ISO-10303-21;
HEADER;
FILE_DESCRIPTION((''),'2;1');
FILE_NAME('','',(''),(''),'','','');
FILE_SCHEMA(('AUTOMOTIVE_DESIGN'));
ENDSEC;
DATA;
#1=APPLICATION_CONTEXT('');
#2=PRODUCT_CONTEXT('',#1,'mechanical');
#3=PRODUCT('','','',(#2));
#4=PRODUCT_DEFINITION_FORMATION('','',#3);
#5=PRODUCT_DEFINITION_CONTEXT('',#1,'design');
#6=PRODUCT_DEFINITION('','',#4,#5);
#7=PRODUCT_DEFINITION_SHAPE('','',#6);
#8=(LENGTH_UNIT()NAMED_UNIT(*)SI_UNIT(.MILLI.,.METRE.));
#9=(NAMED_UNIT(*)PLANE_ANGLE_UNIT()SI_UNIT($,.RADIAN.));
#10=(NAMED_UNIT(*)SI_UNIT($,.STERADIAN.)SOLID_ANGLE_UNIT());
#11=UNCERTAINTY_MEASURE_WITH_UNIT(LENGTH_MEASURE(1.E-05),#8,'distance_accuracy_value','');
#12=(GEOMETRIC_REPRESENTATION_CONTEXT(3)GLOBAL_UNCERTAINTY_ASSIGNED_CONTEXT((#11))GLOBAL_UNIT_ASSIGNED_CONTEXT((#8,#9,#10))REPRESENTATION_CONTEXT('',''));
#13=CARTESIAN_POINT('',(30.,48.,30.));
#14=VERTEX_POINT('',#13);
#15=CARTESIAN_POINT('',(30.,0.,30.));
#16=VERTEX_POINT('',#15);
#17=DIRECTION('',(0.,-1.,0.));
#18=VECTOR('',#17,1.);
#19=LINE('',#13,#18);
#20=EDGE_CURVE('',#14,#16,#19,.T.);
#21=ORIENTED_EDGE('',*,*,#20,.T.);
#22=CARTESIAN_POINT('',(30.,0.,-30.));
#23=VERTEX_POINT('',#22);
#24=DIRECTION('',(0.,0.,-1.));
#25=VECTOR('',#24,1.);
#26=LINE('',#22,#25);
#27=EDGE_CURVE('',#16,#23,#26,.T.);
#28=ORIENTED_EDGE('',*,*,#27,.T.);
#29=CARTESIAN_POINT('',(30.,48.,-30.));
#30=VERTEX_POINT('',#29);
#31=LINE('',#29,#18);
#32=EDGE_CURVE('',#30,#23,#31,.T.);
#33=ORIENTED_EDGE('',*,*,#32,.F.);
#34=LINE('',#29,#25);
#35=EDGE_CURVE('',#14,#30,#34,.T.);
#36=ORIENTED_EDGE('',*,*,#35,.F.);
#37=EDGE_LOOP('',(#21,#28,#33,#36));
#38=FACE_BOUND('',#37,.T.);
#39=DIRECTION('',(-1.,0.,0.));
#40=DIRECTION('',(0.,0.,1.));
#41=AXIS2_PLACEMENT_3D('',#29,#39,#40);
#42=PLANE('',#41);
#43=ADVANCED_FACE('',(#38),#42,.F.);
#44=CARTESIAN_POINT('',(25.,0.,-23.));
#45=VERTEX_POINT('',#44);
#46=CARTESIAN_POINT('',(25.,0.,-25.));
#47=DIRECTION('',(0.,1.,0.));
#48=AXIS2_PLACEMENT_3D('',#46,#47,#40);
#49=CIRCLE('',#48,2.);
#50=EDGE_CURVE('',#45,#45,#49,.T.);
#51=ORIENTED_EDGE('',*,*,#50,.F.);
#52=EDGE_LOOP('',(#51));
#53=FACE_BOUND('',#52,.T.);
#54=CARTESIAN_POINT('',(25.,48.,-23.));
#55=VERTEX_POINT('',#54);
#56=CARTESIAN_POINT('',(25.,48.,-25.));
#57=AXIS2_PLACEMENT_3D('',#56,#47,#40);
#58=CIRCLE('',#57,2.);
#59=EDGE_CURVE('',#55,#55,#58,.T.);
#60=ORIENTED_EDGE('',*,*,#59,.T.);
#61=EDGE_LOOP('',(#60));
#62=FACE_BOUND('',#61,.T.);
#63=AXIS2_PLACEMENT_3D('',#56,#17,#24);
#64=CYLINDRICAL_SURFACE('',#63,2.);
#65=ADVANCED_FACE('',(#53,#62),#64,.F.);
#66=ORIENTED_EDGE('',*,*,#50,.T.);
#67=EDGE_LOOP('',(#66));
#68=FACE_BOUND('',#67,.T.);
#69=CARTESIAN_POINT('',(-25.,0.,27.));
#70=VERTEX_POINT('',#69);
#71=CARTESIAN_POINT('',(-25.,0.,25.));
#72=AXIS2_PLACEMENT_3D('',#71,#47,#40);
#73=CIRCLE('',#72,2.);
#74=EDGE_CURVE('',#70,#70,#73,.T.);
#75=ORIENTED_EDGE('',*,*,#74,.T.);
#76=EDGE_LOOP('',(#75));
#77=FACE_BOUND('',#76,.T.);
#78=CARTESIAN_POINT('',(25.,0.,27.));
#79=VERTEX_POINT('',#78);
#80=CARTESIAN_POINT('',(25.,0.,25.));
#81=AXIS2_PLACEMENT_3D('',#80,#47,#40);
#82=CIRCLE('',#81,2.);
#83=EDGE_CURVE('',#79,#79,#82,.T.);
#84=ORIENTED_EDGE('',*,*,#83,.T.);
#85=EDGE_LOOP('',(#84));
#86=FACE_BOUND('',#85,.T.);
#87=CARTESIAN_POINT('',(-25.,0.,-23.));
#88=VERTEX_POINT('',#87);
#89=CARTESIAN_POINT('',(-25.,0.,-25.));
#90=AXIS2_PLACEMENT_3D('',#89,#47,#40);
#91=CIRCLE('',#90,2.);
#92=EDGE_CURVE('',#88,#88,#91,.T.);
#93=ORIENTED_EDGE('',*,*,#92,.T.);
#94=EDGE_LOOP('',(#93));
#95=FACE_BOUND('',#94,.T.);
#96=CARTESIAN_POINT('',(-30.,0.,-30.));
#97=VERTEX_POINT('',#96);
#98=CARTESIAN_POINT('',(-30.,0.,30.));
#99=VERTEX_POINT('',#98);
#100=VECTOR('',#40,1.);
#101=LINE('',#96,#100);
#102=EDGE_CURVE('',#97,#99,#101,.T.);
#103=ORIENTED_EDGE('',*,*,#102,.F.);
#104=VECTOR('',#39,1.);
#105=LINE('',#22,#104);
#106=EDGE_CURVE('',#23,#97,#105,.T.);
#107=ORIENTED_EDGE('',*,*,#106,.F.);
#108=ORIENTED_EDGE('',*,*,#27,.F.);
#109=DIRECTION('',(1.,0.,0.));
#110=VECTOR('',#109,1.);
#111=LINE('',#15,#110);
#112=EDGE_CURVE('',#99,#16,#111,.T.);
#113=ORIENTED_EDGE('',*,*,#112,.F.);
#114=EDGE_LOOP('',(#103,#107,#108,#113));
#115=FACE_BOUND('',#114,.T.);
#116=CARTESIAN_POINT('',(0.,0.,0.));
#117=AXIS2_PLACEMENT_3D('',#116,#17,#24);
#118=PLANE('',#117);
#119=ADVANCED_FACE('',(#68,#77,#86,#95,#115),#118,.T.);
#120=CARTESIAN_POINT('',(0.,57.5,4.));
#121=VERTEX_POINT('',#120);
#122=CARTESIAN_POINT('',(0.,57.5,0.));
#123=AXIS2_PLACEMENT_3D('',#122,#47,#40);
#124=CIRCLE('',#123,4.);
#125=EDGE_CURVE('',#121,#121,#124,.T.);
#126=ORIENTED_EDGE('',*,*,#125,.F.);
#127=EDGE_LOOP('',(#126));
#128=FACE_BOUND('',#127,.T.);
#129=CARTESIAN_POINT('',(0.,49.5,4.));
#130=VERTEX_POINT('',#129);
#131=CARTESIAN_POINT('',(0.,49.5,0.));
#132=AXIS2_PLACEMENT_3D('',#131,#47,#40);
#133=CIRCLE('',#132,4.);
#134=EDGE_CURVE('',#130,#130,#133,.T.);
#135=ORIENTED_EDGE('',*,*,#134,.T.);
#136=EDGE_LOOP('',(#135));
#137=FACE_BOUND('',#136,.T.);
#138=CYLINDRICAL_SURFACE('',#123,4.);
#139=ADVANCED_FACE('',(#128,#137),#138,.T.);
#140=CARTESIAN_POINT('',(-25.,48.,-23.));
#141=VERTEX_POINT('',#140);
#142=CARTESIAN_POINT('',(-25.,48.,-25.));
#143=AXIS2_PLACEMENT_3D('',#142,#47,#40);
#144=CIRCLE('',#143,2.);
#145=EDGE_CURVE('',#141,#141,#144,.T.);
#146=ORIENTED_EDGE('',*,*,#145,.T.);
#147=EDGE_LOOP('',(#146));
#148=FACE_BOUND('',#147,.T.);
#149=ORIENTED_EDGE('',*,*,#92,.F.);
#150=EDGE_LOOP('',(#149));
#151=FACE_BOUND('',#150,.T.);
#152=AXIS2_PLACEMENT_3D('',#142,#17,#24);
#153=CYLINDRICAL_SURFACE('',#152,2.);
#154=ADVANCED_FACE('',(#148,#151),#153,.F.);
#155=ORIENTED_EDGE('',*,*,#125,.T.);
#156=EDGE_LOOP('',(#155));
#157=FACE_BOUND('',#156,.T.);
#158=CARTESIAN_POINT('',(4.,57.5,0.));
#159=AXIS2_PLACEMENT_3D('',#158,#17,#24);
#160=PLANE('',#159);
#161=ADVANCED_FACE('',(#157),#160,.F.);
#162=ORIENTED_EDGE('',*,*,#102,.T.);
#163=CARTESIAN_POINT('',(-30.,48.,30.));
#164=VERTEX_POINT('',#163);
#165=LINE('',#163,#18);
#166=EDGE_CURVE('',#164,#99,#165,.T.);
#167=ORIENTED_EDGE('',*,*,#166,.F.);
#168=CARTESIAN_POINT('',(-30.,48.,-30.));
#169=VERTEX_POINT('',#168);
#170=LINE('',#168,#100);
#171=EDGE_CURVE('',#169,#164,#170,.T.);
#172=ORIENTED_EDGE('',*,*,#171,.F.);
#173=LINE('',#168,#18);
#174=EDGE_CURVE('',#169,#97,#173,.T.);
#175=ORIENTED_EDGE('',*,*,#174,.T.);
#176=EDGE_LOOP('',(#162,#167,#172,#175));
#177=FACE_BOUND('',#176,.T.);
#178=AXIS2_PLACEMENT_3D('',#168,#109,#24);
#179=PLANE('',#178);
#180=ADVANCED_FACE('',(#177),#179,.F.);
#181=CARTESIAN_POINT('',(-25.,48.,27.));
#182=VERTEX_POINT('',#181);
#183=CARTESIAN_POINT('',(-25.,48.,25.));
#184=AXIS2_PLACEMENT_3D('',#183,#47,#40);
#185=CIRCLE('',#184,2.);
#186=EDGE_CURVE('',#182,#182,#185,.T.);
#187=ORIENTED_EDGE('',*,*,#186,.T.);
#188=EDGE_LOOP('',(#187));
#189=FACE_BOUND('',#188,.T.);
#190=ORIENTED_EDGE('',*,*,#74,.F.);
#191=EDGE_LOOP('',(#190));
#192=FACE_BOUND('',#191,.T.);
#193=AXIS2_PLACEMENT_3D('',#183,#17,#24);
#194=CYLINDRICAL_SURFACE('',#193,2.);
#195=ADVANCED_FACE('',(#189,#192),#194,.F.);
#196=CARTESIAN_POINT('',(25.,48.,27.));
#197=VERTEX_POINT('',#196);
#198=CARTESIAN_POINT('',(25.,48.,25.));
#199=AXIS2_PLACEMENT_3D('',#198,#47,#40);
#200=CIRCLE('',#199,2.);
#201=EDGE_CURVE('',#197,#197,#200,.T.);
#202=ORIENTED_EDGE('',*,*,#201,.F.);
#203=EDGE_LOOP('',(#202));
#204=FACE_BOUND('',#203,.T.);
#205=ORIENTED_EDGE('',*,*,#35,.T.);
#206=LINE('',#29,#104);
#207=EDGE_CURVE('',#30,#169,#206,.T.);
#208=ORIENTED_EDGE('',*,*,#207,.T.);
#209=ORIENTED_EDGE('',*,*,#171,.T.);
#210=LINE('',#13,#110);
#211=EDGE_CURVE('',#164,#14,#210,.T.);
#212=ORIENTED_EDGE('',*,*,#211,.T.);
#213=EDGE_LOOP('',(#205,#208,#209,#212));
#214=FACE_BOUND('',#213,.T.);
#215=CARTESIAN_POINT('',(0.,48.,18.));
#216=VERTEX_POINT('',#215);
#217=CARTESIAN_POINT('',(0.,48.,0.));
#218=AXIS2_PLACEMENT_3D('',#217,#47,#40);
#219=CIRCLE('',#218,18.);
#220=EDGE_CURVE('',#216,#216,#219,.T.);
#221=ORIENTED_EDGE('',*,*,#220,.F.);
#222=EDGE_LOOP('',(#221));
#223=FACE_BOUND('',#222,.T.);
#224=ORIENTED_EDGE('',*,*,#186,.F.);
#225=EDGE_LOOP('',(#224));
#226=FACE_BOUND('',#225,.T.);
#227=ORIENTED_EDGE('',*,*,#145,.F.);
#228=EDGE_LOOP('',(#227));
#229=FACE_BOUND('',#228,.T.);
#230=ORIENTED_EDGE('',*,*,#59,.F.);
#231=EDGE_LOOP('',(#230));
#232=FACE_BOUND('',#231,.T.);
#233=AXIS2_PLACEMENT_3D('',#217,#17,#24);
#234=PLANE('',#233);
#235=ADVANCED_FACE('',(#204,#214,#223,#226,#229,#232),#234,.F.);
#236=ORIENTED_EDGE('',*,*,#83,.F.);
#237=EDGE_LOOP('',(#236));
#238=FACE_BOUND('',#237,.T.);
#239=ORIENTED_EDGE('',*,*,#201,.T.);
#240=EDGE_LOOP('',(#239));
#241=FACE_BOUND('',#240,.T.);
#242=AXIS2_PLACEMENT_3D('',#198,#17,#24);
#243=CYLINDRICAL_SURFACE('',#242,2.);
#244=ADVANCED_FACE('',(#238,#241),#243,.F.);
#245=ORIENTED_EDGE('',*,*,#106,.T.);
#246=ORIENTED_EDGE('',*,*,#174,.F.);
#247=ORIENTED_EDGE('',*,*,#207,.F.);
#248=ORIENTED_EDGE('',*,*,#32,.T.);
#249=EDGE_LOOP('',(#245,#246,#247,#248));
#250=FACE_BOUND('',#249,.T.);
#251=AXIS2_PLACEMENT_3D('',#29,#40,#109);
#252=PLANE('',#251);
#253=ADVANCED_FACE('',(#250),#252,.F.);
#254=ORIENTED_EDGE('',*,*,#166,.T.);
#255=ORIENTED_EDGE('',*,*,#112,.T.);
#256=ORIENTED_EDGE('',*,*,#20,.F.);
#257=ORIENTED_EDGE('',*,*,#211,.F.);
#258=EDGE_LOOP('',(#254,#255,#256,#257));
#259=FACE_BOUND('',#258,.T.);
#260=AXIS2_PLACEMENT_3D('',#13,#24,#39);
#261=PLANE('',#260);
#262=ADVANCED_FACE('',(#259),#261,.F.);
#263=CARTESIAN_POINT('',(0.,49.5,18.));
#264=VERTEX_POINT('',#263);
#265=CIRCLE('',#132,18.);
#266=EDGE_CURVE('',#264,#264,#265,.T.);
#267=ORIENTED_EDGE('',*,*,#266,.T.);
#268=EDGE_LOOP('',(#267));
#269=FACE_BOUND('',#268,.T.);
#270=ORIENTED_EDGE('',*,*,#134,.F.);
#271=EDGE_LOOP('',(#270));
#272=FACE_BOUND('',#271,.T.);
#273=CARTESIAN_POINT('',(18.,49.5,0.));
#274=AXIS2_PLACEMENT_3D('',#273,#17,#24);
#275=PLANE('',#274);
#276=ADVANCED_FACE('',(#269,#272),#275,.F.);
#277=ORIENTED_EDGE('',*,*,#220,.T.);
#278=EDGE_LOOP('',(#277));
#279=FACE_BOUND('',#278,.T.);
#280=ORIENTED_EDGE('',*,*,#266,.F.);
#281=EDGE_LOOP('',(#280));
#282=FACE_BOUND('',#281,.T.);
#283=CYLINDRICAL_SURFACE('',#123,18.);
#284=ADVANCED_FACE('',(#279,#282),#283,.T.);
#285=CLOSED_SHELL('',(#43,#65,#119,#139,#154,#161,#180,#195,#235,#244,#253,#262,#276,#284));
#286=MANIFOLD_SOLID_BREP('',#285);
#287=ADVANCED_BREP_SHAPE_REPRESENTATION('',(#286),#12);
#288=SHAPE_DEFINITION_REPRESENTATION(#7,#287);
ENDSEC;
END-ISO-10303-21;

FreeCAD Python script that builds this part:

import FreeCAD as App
import Part
import Sketcher
from FreeCAD import Vector

doc = App.newDocument("Part")
params = doc.addObject("Spreadsheet::Sheet", "Params")
for row, (alias, value) in enumerate([
    ("sketch1_diameter", "4 mm"),
    ("sketch1_width", "60 mm"),
    ("pad1_length", "48 mm"),
    ("sketch2_width", "18 mm"),
    ("sketch2_width2", "14 mm"),
    ("sketch2_height", "8 mm"),
    ("sketch2_height2", "1.5 mm"),
    ("revolution_angle", "360 deg"),
], start=1):
    params.set(f"A{row}", alias)
    params.set(f"B{row}", "=" + value)
    params.setAlias(f"B{row}", alias)

body = doc.addObject("PartDesign::Body", "Body")

# Sketch on XZ plane
sketch1 = doc.addObject("Sketcher::SketchObject", "Sketch")
body.addObject(sketch1)
sketch1.AttachmentSupport = (doc.XZ_Plane, [""])
sketch1.MapMode = "FlatFace"
sketch1.addGeometry(Part.LineSegment(Vector(-30, -30, 0), Vector(-30, 30, 0)), False)
sketch1.addGeometry(Part.LineSegment(Vector(-30, 30, 0), Vector(30, 30, 0)), False)
sketch1.addGeometry(Part.LineSegment(Vector(30, 30, 0), Vector(30, -30, 0)), False)
sketch1.addGeometry(Part.LineSegment(Vector(30, -30, 0), Vector(-30, -30, 0)), False)
sketch1.addGeometry(Part.Circle(Vector(-25, 25, 0), Vector(0, 0, 1), 2), False)
sketch1.addGeometry(Part.Circle(Vector(25, 25, 0), Vector(0, 0, 1), 2), False)
sketch1.addGeometry(Part.Circle(Vector(-25, -25, 0), Vector(0, 0, 1), 2), False)
sketch1.addGeometry(Part.Circle(Vector(25, -25, 0), Vector(0, 0, 1), 2), False)
sketch1.addConstraint(Sketcher.Constraint("Coincident", 0, 2, 1, 1))
sketch1.addConstraint(Sketcher.Constraint("Coincident", 1, 2, 2, 1))
sketch1.addConstraint(Sketcher.Constraint("Coincident", 2, 2, 3, 1))
sketch1.addConstraint(Sketcher.Constraint("Coincident", 3, 2, 0, 1))
sketch1.addConstraint(Sketcher.Constraint("Vertical", 0))
sketch1.addConstraint(Sketcher.Constraint("Horizontal", 1))
sketch1.addConstraint(Sketcher.Constraint("Vertical", 2))
sketch1.addConstraint(Sketcher.Constraint("Horizontal", 3))
sketch1.addConstraint(Sketcher.Constraint("Equal", 4, 5))
sketch1.addConstraint(Sketcher.Constraint("Equal", 5, 6))
sketch1.addConstraint(Sketcher.Constraint("Equal", 6, 7))
sketch1.addConstraint(Sketcher.Constraint("Symmetric", 5, 3, 6, 3, -1, 1))
sketch1.addConstraint(Sketcher.Constraint("Symmetric", 4, 3, 7, 3, -1, 1))
sketch1.addConstraint(Sketcher.Constraint("Symmetric", 0, 2, 2, 2, -1, 1))
sketch1.addConstraint(Sketcher.Constraint("Symmetric", 4, 3, 5, 3, -2))
sketch1.addConstraint(Sketcher.Constraint("Equal", 3, 0))
sketch1.addConstraint(Sketcher.Constraint("Diameter", 4, 4.0))
sketch1.addConstraint(Sketcher.Constraint("DistanceX", 1, 1, 1, 2, 60.0))
sketch1.addConstraint(Sketcher.Constraint("DistanceX", 4, 3, -1, 1, 25.0))
sketch1.addConstraint(Sketcher.Constraint("DistanceY", -1, 1, 4, 3, 25.0))
sketch1.setExpression("Constraints[16]", "Params.sketch1_diameter")
sketch1.setExpression("Constraints[17]", "Params.sketch1_width")
pad1 = doc.addObject("PartDesign::Pad", "Pad")
body.addObject(pad1)
pad1.Profile = sketch1
pad1.setExpression("Length", "Params.pad1_length")
pad1.Reversed = True

# Sketch on XY plane
sketch2 = doc.addObject("Sketcher::SketchObject", "Sketch001")
body.addObject(sketch2)
sketch2.AttachmentSupport = (doc.XY_Plane, [""])
sketch2.MapMode = "FlatFace"
sketch2.addGeometry(Part.LineSegment(Vector(0, 48, 0), Vector(18, 48, 0)), False)
sketch2.addGeometry(Part.LineSegment(Vector(18, 48, 0), Vector(18, 49.5, 0)), False)
sketch2.addGeometry(Part.LineSegment(Vector(18, 49.5, 0), Vector(4, 49.5, 0)), False)
sketch2.addGeometry(Part.LineSegment(Vector(4, 49.5, 0), Vector(4, 57.5, 0)), False)
sketch2.addGeometry(Part.LineSegment(Vector(4, 57.5, 0), Vector(0, 57.5, 0)), False)
sketch2.addGeometry(Part.LineSegment(Vector(0, 57.5, 0), Vector(0, 48, 0)), False)
sketch2.addConstraint(Sketcher.Constraint("Coincident", 0, 2, 1, 1))
sketch2.addConstraint(Sketcher.Constraint("Coincident", 1, 2, 2, 1))
sketch2.addConstraint(Sketcher.Constraint("Coincident", 2, 2, 3, 1))
sketch2.addConstraint(Sketcher.Constraint("Coincident", 3, 2, 4, 1))
sketch2.addConstraint(Sketcher.Constraint("Coincident", 4, 2, 5, 1))
sketch2.addConstraint(Sketcher.Constraint("Coincident", 5, 2, 0, 1))
sketch2.addConstraint(Sketcher.Constraint("Horizontal", 0))
sketch2.addConstraint(Sketcher.Constraint("Vertical", 1))
sketch2.addConstraint(Sketcher.Constraint("Horizontal", 2))
sketch2.addConstraint(Sketcher.Constraint("Vertical", 3))
sketch2.addConstraint(Sketcher.Constraint("Horizontal", 4))
sketch2.addConstraint(Sketcher.Constraint("Vertical", 5))
sketch2.addConstraint(Sketcher.Constraint("PointOnObject", 4, 2, -2))
sketch2.addConstraint(Sketcher.Constraint("DistanceX", 0, 1, 0, 2, 18.0))
sketch2.addConstraint(Sketcher.Constraint("DistanceX", 2, 2, 2, 1, 14.0))
sketch2.addConstraint(Sketcher.Constraint("DistanceY", 3, 1, 3, 2, 8.0))
sketch2.addConstraint(Sketcher.Constraint("DistanceY", 1, 1, 1, 2, 1.5))
sketch2.addConstraint(Sketcher.Constraint("DistanceY", -1, 1, 0, 2, 48.0))
sketch2.setExpression("Constraints[13]", "Params.sketch2_width")
sketch2.setExpression("Constraints[14]", "Params.sketch2_width2")
sketch2.setExpression("Constraints[15]", "Params.sketch2_height")
sketch2.setExpression("Constraints[16]", "Params.sketch2_height2")
revolution = doc.addObject("PartDesign::Revolution", "Revolution")
body.addObject(revolution)
revolution.Profile = sketch2
revolution.ReferenceAxis = (sketch2, ["V_Axis"])
revolution.setExpression("Angle", "Params.revolution_angle")

doc.recompute()
